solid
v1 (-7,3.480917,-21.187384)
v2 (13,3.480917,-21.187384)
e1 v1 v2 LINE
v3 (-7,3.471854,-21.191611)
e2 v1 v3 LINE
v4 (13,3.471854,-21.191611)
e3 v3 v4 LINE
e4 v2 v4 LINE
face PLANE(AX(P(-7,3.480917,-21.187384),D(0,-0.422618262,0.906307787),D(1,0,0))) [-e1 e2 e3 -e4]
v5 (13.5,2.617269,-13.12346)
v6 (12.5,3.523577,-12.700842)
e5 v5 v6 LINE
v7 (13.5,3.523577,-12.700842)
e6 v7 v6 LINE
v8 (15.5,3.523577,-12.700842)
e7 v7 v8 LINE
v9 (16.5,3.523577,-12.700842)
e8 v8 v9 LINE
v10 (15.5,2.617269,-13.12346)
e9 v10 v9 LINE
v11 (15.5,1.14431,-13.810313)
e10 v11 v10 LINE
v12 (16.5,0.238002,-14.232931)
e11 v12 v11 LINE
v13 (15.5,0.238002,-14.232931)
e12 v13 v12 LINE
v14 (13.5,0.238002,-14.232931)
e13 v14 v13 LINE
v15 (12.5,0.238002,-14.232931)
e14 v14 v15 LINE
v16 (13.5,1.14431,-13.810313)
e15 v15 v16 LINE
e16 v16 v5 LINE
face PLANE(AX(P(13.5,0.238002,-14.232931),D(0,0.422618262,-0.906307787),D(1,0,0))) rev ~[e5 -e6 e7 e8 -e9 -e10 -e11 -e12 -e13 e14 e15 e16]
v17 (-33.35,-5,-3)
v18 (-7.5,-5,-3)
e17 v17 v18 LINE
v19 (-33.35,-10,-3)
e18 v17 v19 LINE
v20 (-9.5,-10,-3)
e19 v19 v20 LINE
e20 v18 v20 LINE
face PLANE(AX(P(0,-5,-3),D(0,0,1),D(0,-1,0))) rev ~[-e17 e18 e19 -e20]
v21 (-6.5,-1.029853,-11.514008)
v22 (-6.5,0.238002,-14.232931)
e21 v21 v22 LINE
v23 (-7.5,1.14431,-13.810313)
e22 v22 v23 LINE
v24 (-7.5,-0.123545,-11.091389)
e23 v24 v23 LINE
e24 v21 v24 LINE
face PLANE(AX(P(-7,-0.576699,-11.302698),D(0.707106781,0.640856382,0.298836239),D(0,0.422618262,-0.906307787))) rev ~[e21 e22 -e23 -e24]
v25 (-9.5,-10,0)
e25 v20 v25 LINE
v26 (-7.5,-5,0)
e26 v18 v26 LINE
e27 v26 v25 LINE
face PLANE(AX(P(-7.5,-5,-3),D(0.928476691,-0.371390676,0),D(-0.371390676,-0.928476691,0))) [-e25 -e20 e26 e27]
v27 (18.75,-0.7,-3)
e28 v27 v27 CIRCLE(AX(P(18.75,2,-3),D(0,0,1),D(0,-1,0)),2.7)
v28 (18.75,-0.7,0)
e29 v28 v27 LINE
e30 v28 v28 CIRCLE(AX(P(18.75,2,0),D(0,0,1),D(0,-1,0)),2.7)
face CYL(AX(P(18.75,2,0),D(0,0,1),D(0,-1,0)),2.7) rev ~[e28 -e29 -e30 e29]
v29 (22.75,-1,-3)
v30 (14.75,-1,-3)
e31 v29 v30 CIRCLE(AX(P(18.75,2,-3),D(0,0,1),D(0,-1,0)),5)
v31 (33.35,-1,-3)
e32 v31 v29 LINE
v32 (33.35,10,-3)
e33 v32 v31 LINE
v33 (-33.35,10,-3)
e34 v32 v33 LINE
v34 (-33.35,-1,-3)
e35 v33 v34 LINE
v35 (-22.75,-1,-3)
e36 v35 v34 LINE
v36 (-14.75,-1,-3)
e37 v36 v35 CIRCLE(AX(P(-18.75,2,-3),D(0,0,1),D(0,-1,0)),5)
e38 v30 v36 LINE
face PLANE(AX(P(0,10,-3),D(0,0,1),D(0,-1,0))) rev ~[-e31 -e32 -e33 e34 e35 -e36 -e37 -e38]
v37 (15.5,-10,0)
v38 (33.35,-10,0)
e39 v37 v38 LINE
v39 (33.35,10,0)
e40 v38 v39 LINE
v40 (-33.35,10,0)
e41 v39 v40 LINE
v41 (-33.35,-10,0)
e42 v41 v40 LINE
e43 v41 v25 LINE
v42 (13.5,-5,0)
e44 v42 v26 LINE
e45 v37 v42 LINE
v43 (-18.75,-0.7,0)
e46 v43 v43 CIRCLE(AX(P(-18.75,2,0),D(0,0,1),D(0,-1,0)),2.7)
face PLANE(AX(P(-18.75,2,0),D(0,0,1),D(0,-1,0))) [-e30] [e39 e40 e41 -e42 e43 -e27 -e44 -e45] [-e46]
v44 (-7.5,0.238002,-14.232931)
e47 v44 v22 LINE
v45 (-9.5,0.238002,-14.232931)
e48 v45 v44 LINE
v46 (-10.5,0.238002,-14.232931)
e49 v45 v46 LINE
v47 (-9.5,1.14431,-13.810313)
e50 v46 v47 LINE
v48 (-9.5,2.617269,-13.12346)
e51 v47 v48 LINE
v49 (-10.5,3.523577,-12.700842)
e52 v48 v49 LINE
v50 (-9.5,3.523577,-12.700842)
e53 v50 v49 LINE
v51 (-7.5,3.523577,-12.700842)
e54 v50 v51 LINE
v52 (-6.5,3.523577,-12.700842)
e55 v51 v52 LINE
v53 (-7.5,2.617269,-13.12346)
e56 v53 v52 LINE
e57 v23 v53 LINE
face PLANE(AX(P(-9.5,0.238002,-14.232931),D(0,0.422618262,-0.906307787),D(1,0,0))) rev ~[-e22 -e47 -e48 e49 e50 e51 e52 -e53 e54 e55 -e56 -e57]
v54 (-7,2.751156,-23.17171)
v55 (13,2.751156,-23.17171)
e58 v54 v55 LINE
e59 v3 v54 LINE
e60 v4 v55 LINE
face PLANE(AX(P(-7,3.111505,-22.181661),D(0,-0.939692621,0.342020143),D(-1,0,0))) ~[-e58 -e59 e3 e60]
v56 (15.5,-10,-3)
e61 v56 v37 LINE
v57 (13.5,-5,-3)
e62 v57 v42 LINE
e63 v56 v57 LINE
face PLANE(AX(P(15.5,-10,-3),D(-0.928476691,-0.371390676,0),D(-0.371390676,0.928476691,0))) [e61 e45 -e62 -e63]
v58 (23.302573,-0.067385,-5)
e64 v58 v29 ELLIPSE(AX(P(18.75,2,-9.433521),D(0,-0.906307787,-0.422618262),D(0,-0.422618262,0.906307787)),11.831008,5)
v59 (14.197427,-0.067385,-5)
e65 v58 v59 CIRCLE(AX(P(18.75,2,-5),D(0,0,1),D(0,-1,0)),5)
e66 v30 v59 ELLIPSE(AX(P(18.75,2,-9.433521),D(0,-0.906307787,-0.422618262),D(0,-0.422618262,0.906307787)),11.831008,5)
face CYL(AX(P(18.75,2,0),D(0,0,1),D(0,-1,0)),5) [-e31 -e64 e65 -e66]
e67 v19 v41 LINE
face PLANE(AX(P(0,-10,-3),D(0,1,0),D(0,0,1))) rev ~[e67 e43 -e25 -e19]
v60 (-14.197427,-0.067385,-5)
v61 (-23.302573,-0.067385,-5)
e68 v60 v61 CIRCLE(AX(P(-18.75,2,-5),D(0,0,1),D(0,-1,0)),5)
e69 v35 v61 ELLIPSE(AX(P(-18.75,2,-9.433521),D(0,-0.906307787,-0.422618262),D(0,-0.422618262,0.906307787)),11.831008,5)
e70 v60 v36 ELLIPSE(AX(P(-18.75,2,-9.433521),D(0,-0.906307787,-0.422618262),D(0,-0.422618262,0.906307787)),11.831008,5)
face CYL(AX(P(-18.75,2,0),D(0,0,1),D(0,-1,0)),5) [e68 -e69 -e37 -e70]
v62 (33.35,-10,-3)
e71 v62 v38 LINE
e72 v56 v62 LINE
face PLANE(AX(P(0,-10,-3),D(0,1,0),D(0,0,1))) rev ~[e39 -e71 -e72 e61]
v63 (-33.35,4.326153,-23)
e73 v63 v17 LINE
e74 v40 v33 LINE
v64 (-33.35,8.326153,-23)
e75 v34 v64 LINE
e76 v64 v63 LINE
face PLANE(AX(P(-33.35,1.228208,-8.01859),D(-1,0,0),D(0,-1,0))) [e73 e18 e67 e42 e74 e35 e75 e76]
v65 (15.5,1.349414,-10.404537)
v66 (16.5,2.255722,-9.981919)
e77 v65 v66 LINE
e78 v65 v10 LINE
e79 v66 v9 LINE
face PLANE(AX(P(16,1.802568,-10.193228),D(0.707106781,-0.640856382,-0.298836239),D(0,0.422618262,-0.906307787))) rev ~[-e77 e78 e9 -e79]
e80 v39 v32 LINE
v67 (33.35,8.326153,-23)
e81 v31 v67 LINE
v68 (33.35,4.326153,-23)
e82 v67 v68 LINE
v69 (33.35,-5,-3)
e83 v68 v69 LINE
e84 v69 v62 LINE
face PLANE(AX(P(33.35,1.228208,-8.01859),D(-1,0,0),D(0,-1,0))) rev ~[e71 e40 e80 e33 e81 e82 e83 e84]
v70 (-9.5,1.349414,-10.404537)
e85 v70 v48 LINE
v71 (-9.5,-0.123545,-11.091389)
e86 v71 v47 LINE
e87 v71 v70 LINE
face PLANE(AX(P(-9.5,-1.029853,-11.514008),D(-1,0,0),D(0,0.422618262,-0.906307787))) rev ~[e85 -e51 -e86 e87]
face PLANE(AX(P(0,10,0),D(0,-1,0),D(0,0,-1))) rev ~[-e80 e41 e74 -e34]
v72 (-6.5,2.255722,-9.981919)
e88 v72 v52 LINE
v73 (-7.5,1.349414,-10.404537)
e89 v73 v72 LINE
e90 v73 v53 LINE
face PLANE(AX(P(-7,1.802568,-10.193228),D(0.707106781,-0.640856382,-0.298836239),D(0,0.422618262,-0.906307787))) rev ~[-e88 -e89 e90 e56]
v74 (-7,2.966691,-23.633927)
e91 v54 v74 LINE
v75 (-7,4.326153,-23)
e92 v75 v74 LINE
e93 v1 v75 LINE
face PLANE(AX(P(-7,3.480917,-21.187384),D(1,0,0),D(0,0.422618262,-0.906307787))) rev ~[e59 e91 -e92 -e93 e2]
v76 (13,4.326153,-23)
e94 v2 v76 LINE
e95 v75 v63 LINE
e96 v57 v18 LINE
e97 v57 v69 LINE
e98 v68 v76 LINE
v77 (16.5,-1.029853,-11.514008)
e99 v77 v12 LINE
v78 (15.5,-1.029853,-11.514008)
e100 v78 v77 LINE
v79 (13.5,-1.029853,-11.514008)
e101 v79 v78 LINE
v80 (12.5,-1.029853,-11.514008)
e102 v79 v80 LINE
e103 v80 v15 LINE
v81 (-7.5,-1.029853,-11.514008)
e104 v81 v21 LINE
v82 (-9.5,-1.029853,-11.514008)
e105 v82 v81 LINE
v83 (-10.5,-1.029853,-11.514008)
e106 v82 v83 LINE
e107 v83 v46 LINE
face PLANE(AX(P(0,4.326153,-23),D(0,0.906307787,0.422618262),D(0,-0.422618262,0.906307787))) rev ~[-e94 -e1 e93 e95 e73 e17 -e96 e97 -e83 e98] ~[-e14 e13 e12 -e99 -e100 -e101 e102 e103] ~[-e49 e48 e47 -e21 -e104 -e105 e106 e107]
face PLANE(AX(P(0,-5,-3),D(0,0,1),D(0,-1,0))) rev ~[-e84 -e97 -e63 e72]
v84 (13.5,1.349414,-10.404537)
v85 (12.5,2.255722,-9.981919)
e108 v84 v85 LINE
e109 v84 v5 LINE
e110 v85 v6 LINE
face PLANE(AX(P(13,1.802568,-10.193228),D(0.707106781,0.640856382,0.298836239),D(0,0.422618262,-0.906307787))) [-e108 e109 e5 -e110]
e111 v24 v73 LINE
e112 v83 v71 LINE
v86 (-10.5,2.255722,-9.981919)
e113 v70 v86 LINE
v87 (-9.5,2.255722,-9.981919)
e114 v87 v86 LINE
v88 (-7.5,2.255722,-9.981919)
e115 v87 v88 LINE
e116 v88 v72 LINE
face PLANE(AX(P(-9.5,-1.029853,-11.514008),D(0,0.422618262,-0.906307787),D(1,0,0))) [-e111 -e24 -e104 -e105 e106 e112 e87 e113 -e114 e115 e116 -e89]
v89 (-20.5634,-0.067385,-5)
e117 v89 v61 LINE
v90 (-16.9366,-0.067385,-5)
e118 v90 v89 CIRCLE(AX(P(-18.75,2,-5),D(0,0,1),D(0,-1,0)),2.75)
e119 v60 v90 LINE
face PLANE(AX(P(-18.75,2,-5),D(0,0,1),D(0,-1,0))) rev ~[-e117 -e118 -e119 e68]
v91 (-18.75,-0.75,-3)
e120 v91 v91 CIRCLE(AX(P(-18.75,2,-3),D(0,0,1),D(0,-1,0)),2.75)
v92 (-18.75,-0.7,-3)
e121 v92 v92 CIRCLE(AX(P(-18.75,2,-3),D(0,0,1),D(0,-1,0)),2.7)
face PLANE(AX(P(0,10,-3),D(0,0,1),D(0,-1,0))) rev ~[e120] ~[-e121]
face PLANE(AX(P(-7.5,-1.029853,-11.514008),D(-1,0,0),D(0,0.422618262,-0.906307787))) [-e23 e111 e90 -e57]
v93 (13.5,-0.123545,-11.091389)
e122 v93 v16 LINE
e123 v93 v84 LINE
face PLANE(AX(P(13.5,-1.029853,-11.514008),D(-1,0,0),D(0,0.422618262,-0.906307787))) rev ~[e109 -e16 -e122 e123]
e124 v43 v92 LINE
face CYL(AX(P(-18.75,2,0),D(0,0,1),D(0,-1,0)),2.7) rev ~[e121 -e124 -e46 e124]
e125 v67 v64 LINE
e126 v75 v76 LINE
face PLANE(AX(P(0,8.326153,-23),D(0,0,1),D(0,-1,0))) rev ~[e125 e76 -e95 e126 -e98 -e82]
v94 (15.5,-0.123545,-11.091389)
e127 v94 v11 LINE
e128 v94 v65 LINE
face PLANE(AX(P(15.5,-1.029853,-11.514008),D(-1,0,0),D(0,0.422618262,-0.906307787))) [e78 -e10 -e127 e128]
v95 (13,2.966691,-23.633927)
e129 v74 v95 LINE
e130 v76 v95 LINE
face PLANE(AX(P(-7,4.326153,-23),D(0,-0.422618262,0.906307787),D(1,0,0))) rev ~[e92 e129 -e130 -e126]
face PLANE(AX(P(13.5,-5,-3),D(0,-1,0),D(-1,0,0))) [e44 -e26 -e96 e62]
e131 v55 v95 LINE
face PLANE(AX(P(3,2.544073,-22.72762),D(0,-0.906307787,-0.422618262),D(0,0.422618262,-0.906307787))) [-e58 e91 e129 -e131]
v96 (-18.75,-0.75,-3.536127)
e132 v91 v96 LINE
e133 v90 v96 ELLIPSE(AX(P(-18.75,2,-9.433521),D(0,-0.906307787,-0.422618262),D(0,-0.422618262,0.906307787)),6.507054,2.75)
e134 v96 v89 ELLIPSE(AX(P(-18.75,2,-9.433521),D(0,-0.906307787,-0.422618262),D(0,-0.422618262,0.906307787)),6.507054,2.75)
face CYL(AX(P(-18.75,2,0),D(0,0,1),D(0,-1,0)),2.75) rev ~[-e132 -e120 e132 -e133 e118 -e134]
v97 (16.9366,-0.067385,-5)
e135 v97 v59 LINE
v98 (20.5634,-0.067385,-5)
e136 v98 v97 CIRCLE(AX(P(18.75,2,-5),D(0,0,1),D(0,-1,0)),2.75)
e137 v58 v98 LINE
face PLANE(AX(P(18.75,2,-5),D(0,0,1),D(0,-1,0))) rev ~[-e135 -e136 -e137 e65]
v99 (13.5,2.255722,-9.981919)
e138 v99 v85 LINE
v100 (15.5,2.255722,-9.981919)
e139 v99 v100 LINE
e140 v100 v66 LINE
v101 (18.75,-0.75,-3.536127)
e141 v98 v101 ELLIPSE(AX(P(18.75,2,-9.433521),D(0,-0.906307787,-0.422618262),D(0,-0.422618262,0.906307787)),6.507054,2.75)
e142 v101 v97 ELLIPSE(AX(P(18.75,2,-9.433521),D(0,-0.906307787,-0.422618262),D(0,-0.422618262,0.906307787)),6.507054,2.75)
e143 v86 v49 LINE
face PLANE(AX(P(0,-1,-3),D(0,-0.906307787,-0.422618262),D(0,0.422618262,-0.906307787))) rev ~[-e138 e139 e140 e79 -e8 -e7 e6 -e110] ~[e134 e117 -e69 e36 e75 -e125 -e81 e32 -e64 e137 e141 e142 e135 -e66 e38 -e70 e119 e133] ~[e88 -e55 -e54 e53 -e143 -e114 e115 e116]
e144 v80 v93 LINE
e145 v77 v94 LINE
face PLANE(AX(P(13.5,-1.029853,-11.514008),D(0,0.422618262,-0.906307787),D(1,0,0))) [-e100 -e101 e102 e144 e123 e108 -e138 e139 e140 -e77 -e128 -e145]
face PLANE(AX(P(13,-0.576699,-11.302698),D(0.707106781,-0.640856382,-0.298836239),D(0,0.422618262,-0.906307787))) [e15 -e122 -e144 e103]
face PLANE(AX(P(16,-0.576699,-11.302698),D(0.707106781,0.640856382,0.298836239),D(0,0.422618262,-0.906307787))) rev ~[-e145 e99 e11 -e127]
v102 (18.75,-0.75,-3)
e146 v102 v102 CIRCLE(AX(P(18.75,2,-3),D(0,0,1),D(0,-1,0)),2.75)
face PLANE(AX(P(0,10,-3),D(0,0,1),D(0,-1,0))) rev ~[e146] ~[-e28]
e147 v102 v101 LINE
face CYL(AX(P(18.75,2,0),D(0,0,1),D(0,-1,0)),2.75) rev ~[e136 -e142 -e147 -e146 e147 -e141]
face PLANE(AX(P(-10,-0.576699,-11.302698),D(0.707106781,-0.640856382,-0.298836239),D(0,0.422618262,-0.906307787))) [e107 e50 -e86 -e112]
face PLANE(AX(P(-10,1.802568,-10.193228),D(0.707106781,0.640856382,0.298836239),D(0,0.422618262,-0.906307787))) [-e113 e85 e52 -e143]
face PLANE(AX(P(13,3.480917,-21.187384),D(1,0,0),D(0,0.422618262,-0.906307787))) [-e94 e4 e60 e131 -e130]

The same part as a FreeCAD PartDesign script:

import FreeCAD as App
import Part
import Sketcher

V = App.Vector
Q = App.Units.Quantity


def edges_at(feature, points):
    """Names of the edges that pass closest to the given points."""
    edges = feature.Shape.Edges
    near = lambda p: min(range(len(edges)), key=lambda i: edges[i].distToShape(Part.Vertex(*p))[0])
    return sorted({f"Edge{near(p) + 1}" for p in points})

doc = App.newDocument("Part")
body = doc.addObject("PartDesign::Body", "Body")

# Sketch on YZ plane
sketch1 = body.newObject("Sketcher::SketchObject", "Sketch")
sketch1.AttachmentSupport = (doc.getObject("YZ_Plane"), [""])
sketch1.MapMode = "FlatFace"
sketch1.addGeometry([
    Part.LineSegment(V(10, 0, 0), V(-10, 0, 0)),  # 0
    Part.LineSegment(V(-10, 0, 0), V(-10, -3, 0)),  # 1
    Part.LineSegment(V(-10, -3, 0), V(-5, -3, 0)),  # 2
    Part.LineSegment(V(-5, -3, 0), V(4.3, -23, 0)),  # 3
    Part.LineSegment(V(4.3, -23, 0), V(8.3, -23, 0)),  # 4
    Part.LineSegment(V(8.3, -23, 0), V(-1, -3, 0)),  # 5
    Part.LineSegment(V(-1, -3, 0), V(10, -3, 0)),  # 6
    Part.LineSegment(V(10, -3, 0), V(10, 0, 0)),  # 7
], False)
sketch1.addConstraint([
    Sketcher.Constraint("Coincident", 0, 2, 1, 1),
    Sketcher.Constraint("Coincident", 1, 2, 2, 1),
    Sketcher.Constraint("Coincident", 2, 2, 3, 1),
    Sketcher.Constraint("Coincident", 3, 2, 4, 1),
    Sketcher.Constraint("Coincident", 4, 2, 5, 1),
    Sketcher.Constraint("Coincident", 5, 2, 6, 1),
    Sketcher.Constraint("Coincident", 6, 2, 7, 1),
    Sketcher.Constraint("Coincident", 7, 2, 0, 1),
    Sketcher.Constraint("Horizontal", 0),
    Sketcher.Constraint("Vertical", 1),
    Sketcher.Constraint("Horizontal", 2),
    Sketcher.Constraint("Horizontal", 4),
    Sketcher.Constraint("Horizontal", 6),
    Sketcher.Constraint("Vertical", 7),
    Sketcher.Constraint("Symmetric", 0, 2, 7, 2, -1, 1),
    Sketcher.Constraint("Parallel", 3, 5),
    Sketcher.Constraint("Horizontal", 2, 2, 5, 2),
    Sketcher.Constraint("DistanceX", 0, 2, 0, 1, 20.0),
    Sketcher.Constraint("DistanceX", 2, 1, 2, 2, 5.0),
    Sketcher.Constraint("DistanceX", 4, 1, 4, 2, 4.0),
    Sketcher.Constraint("DistanceY", 1, 2, 1, 1, 3.0),
    Sketcher.Constraint("Angle", 3, Q("-65 deg")),
    Sketcher.Constraint("DistanceY", 3, 2, -1, 1, 23.0),
])
pad1 = body.newObject("PartDesign::Pad", "Pad")
pad1.Profile = sketch1
pad1.Length = 66.7
pad1.Midplane = True

# Sketch on XY plane
sketch2 = body.newObject("Sketcher::SketchObject", "Sketch001")
sketch2.AttachmentSupport = (doc.getObject("XY_Plane"), [""])
sketch2.MapMode = "FlatFace"
sketch2.addGeometry([
    Part.Circle(V(18.8, 2, 0), V(0, 0, 1), 2.7),
    Part.Circle(V(-18.8, 2, 0), V(0, 0, 1), 2.7),
], False)
sketch2.addConstraint([
    Sketcher.Constraint("Equal", 0, 1),
    Sketcher.Constraint("Symmetric", 0, 3, 1, 3, -2),
    Sketcher.Constraint("Diameter", 0, 5.4),
    Sketcher.Constraint("DistanceY", -1, 1, 0, 3, 2.0),
    Sketcher.Constraint("DistanceX", 1, 3, 0, 3, 37.5),
])
pocket1 = body.newObject("PartDesign::Pocket", "Pocket")
pocket1.Profile = sketch2
pocket1.Length = 3

# Sketch on an angled plane
sketch3 = body.newObject("Sketcher::SketchObject", "Sketch002")
sketch3.Placement = App.Placement(V(0, -5.256036, -2.45093), App.Rotation(V(0, 0.422618262, -0.906307787), V(1, 0, 0), V(0, -0.906307787, -0.422618262), "ZXY"))
sketch3.addGeometry([
    Part.LineSegment(V(10, 15.5, 0), V(10, 13.5, 0)),  # 0
    Part.LineSegment(V(10, 13.5, 0), V(13, 13.5, 0)),  # 1
    Part.LineSegment(V(13, 13.5, 0), V(13, 15.5, 0)),  # 2
    Part.LineSegment(V(13, 15.5, 0), V(10, 15.5, 0)),  # 3
    Part.LineSegment(V(10, -7.5, 0), V(10, -9.5, 0)),  # 4
    Part.LineSegment(V(10, -9.5, 0), V(13, -9.5, 0)),  # 5
    Part.LineSegment(V(13, -9.5, 0), V(13, -7.5, 0)),  # 6
    Part.LineSegment(V(13, -7.5, 0), V(10, -7.5, 0)),  # 7
], False)
sketch3.addConstraint([
    Sketcher.Constraint("Coincident", 0, 2, 1, 1),
    Sketcher.Constraint("Coincident", 1, 2, 2, 1),
    Sketcher.Constraint("Coincident", 2, 2, 3, 1),
    Sketcher.Constraint("Coincident", 3, 2, 0, 1),
    Sketcher.Constraint("Coincident", 4, 2, 5, 1),
    Sketcher.Constraint("Coincident", 5, 2, 6, 1),
    Sketcher.Constraint("Coincident", 6, 2, 7, 1),
    Sketcher.Constraint("Coincident", 7, 2, 4, 1),
    Sketcher.Constraint("Vertical", 0),
    Sketcher.Constraint("Horizontal", 1),
    Sketcher.Constraint("Vertical", 2),
    Sketcher.Constraint("Horizontal", 3),
    Sketcher.Constraint("Vertical", 4),
    Sketcher.Constraint("Horizontal", 5),
    Sketcher.Constraint("Vertical", 6),
    Sketcher.Constraint("Horizontal", 7),
    Sketcher.Constraint("Vertical", 3, 2, 4, 2),
    Sketcher.Constraint("Vertical", 2, 2, 5, 2),
    Sketcher.Constraint("Equal", 2, 4),
    Sketcher.Constraint("DistanceX", 1, 1, 1, 2, 3.0),
    Sketcher.Constraint("DistanceY", 0, 2, 0, 1, 2.0),
    Sketcher.Constraint("DistanceX", -1, 1, 0, 2, 10.0),
    Sketcher.Constraint("DistanceY", 4, 2, 0, 2, 23.0),
    Sketcher.Constraint("DistanceY", -1, 1, 0, 2, 13.5),
])
pocket2 = body.newObject("PartDesign::Pocket", "Pocket001")
pocket2.Profile = sketch3
pocket2.Length = 3.625231

# Sketch on an angled plane
sketch4 = body.newObject("Sketcher::SketchObject", "Sketch003")
sketch4.Placement = App.Placement(V(0, -5.256036, -2.45093), App.Rotation(V(0, 0.422618262, -0.906307787), V(1, 0, 0), V(0, -0.906307787, -0.422618262), "ZXY"))
sketch4.addGeometry([
    Part.LineSegment(V(10, 15.5, 0), V(10, 13.5, 0)),  # 0
    Part.LineSegment(V(10, 13.5, 0), V(13, 13.5, 0)),  # 1
    Part.LineSegment(V(13, 13.5, 0), V(13, 15.5, 0)),  # 2
    Part.LineSegment(V(13, 15.5, 0), V(10, 15.5, 0)),  # 3
    Part.LineSegment(V(10, -7.5, 0), V(10, -9.5, 0)),  # 4
    Part.LineSegment(V(10, -9.5, 0), V(13, -9.5, 0)),  # 5
    Part.LineSegment(V(13, -9.5, 0), V(13, -7.5, 0)),  # 6
    Part.LineSegment(V(13, -7.5, 0), V(10, -7.5, 0)),  # 7
], False)
sketch4.addConstraint([
    Sketcher.Constraint("Coincident", 0, 2, 1, 1),
    Sketcher.Constraint("Coincident", 1, 2, 2, 1),
    Sketcher.Constraint("Coincident", 2, 2, 3, 1),
    Sketcher.Constraint("Coincident", 3, 2, 0, 1),
    Sketcher.Constraint("Coincident", 4, 2, 5, 1),
    Sketcher.Constraint("Coincident", 5, 2, 6, 1),
    Sketcher.Constraint("Coincident", 6, 2, 7, 1),
    Sketcher.Constraint("Coincident", 7, 2, 4, 1),
    Sketcher.Constraint("Vertical", 0),
    Sketcher.Constraint("Horizontal", 1),
    Sketcher.Constraint("Vertical", 2),
    Sketcher.Constraint("Horizontal", 3),
    Sketcher.Constraint("Vertical", 4),
    Sketcher.Constraint("Horizontal", 5),
    Sketcher.Constraint("Vertical", 6),
    Sketcher.Constraint("Horizontal", 7),
    Sketcher.Constraint("Vertical", 3, 2, 4, 2),
    Sketcher.Constraint("Vertical", 2, 2, 5, 2),
    Sketcher.Constraint("Equal", 2, 4),
    Sketcher.Constraint("DistanceX", 1, 1, 1, 2, 3.0),
    Sketcher.Constraint("DistanceY", 0, 2, 0, 1, 2.0),
    Sketcher.Constraint("DistanceX", -1, 1, 0, 2, 10.0),
    Sketcher.Constraint("DistanceY", 4, 2, 0, 2, 23.0),
    Sketcher.Constraint("DistanceY", -1, 1, 0, 2, 13.5),
])
pocket3 = body.newObject("PartDesign::Pocket", "Pocket002")
pocket3.Profile = sketch4
pocket3.Length = 3.625231

# Sketch on an angled plane
sketch5 = body.newObject("Sketcher::SketchObject", "Sketch004")
sketch5.Placement = App.Placement(V(0, -5.256036, -2.45093), App.Rotation(V(0, 0.422618262, -0.906307787), V(1, 0, 0), V(0, -0.906307787, -0.422618262), "ZXY"))
sketch5.addGeometry([
    Part.LineSegment(V(20.7, 13, 0), V(20.7, -7, 0)),
    Part.LineSegment(V(20.7, -7, 0), V(22.7, -7, 0)),
    Part.LineSegment(V(22.7, -7, 0), V(22.7, 13, 0)),
    Part.LineSegment(V(22.7, 13, 0), V(20.7, 13, 0)),
], False)
sketch5.addConstraint([
    Sketcher.Constraint("Coincident", 0, 2, 1, 1),
    Sketcher.Constraint("Coincident", 1, 2, 2, 1),
    Sketcher.Constraint("Coincident", 2, 2, 3, 1),
    Sketcher.Constraint("Coincident", 3, 2, 0, 1),
    Sketcher.Constraint("Vertical", 0),
    Sketcher.Constraint("Horizontal", 1),
    Sketcher.Constraint("Vertical", 2),
    Sketcher.Constraint("Horizontal", 3),
    Sketcher.Constraint("DistanceX", 1, 1, 1, 2, 2.0),
    Sketcher.Constraint("DistanceY", 0, 2, 0, 1, 20.0),
    Sketcher.Constraint("DistanceY", 0, 2, -1, 1, 7.0),
    Sketcher.Constraint("DistanceX", -1, 1, 0, 2, 20.67339),
])
pad2 = body.newObject("PartDesign::Pad", "Pad001")
pad2.Profile = sketch5
pad2.Length = 1.5
doc.recompute()

chamfer = body.newObject("PartDesign::Chamfer", "Chamfer")
chamfer.Base = (pad2, edges_at(pad2, [(3, 2.121, -21.821)]))
chamfer.Size = 1.49

# Sketch on XY plane
sketch6 = body.newObject("Sketcher::SketchObject", "Sketch005")
sketch6.AttachmentSupport = (doc.getObject("XY_Plane"), [""])
sketch6.MapMode = "FlatFace"
sketch6.AttachmentOffset = App.Placement(V(0, 0, -3), App.Rotation())
sketch6.addGeometry([
    Part.LineSegment(V(14, -5, 0), V(16, -10, 0)),
    Part.LineSegment(V(16, -10, 0), V(-10, -10, 0)),
    Part.LineSegment(V(-10, -10, 0), V(-8, -5, 0)),
    Part.LineSegment(V(-8, -5, 0), V(14, -5, 0)),
], False)
sketch6.addConstraint([
    Sketcher.Constraint("Coincident", 0, 2, 1, 1),
    Sketcher.Constraint("Coincident", 1, 2, 2, 1),
    Sketcher.Constraint("Coincident", 2, 2, 3, 1),
    Sketcher.Constraint("Coincident", 3, 2, 0, 1),
    Sketcher.Constraint("Horizontal", 1),
    Sketcher.Constraint("Horizontal", 3),
    Sketcher.Constraint("Equal", 0, 2),
    Sketcher.Constraint("DistanceX", 1, 2, 1, 1, 25.0),
    Sketcher.Constraint("DistanceX", 3, 1, 3, 2, 21.0),
    Sketcher.Constraint("DistanceY", 0, 2, -1, 1, 10.0),
    Sketcher.Constraint("DistanceY", 2, 2, -1, 1, 5.0),
    Sketcher.Constraint("DistanceX", -1, 1, 0, 2, 15.5),
])
pocket4 = body.newObject("PartDesign::Pocket", "Pocket003")
pocket4.Profile = sketch6
pocket4.Type = "ThroughAll"
pocket4.Reversed = True
doc.recompute()

chamfer2 = body.newObject("PartDesign::Chamfer", "Chamfer001")
chamfer2.Base = (pocket4, edges_at(pocket4, [
    (15.5, -0.396, -12.873),
    (13.5, -0.396, -12.873),
    (-7.5, -0.396, -12.873),
    (-9.5, -0.396, -12.873),
    (-9.5, 2.89, -11.341),
    (-7.5, 2.89, -11.341),
    (13.5, 2.89, -11.341),
    (15.5, 2.89, -11.341),
]))
chamfer2.Size = 1

# Sketch on XY plane
sketch7 = body.newObject("Sketcher::SketchObject", "Sketch006")
sketch7.AttachmentSupport = (doc.getObject("XY_Plane"), [""])
sketch7.MapMode = "FlatFace"
sketch7.addGeometry([
    Part.Circle(V(-18.8, 2, 0), V(0, 0, 1), 5),
    Part.Circle(V(-18.8, 2, 0), V(0, 0, 1), 2.8),
    Part.Circle(V(18.8, 2, 0), V(0, 0, 1), 5),
    Part.Circle(V(18.8, 2, 0), V(0, 0, 1), 2.8),
], False)
sketch7.addConstraint([
    Sketcher.Constraint("Coincident", 1, 3, 0, 3),
    Sketcher.Constraint("Coincident", 3, 3, 2, 3),
    Sketcher.Constraint("Equal", 0, 2),
    Sketcher.Constraint("Equal", 1, 3),
    Sketcher.Constraint("Symmetric", 0, 3, 2, 3, -2),
    Sketcher.Constraint("Diameter", 0, 10.0),
    Sketcher.Constraint("Diameter", 1, 5.5),
    Sketcher.Constraint("DistanceY", -1, 1, 0, 3, 2.0),
    Sketcher.Constraint("DistanceX", 0, 3, 2, 3, 37.5),
])
pad3 = body.newObject("PartDesign::Pad", "Pad002")
pad3.Profile = sketch7
pad3.Length = 5
pad3.Reversed = True

doc.recompute()
